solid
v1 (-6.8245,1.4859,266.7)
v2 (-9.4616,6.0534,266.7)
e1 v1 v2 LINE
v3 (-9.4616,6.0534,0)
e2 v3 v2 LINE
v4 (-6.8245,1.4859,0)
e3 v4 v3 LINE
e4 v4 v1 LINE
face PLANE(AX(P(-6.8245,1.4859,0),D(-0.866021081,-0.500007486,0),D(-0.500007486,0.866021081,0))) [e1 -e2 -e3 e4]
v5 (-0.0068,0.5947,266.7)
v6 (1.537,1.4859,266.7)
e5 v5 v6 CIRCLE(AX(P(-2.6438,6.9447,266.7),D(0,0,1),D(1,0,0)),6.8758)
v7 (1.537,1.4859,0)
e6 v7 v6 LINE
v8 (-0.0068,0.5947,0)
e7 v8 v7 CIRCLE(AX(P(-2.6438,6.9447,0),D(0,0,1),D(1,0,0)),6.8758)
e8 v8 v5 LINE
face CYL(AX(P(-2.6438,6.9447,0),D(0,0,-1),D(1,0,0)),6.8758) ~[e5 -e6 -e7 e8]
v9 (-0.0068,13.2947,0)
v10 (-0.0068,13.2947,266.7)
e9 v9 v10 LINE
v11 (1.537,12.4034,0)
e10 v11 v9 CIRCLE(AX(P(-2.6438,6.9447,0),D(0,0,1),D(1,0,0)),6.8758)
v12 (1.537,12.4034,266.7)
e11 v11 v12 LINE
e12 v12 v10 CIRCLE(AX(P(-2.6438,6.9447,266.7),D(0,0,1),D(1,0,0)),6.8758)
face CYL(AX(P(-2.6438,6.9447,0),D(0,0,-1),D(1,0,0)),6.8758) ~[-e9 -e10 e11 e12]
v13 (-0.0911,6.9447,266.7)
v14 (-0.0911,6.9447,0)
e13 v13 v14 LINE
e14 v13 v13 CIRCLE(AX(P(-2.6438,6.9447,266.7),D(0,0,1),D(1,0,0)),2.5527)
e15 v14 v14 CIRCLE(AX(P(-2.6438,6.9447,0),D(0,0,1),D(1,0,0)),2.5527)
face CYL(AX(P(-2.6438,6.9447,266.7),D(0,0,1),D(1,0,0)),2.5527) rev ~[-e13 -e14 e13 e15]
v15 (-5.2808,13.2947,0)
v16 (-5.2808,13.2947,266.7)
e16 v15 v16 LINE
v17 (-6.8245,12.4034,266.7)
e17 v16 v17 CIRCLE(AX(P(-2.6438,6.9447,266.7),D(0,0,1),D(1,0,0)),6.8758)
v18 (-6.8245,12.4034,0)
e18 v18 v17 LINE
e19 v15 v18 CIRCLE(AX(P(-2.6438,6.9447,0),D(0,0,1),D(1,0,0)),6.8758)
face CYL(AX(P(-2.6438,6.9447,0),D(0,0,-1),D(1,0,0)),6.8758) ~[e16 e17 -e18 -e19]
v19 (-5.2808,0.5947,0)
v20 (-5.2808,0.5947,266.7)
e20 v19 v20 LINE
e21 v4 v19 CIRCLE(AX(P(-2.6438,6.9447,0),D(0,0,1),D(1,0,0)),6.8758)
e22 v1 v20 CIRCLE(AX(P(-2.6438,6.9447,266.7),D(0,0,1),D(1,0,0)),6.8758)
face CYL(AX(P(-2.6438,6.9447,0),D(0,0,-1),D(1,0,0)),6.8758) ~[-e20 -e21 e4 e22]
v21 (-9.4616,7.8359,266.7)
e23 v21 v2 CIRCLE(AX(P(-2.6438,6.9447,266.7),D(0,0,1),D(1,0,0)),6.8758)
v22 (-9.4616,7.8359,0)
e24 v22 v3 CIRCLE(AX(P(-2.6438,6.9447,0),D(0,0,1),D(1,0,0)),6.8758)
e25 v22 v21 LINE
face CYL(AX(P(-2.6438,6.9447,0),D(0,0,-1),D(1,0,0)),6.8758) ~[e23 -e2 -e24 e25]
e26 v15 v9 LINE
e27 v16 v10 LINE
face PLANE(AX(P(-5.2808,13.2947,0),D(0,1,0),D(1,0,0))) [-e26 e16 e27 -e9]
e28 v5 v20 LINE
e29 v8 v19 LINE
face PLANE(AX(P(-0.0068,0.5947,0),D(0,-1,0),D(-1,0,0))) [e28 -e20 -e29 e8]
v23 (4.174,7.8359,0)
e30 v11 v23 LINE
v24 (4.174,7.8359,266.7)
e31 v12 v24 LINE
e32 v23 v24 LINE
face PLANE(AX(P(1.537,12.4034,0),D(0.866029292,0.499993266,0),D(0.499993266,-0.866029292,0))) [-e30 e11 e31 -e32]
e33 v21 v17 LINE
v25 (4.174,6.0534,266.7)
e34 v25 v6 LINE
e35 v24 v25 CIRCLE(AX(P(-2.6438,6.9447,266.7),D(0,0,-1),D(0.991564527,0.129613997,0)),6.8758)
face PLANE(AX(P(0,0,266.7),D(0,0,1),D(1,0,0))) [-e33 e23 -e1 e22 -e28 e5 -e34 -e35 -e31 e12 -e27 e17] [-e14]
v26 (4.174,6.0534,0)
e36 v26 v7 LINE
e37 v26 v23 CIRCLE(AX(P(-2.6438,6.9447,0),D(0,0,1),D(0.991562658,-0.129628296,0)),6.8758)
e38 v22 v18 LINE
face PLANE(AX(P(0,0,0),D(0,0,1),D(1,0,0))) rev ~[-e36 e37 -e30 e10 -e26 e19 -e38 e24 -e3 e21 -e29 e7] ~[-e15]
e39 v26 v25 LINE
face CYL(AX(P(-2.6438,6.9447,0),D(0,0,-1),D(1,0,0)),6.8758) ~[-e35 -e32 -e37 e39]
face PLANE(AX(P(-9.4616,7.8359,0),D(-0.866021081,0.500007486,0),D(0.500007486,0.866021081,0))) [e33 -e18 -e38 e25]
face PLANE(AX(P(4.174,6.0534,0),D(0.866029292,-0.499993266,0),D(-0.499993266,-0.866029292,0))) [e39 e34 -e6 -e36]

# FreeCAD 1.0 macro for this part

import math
import FreeCAD as App
import Part
import Sketcher

V = App.Vector
Q = App.Units.Quantity

doc = App.newDocument("Part")
body = doc.addObject("PartDesign::Body", "Body")

# Sketch on XY plane
sketch1 = doc.addObject("Sketcher::SketchObject", "Sketch")
body.addObject(sketch1)
sketch1.AttachmentSupport = (doc.XY_Plane, [""])
sketch1.MapMode = "FlatFace"
sketch1.addGeometry(Part.ArcOfCircle(Part.Circle(V(-2.6, 6.9, 0), V(0, 0, 1), 6.9), math.radians(-7.45), math.radians(7.45)), False)
sketch1.addGeometry(Part.LineSegment(V(4.2, 7.8, 0), V(1.5, 12.4, 0)), False)
sketch1.addGeometry(Part.ArcOfCircle(Part.Circle(V(-2.6, 6.9, 0), V(0, 0, 1), 6.9), math.radians(52.55), math.radians(67.45)), False)
sketch1.addGeometry(Part.LineSegment(V(0, 13.3, 0), V(-5.3, 13.3, 0)), False)
sketch1.addGeometry(Part.ArcOfCircle(Part.Circle(V(-2.6, 6.9, 0), V(0, 0, 1), 6.9), math.radians(112.55), math.radians(127.45)), False)
sketch1.addGeometry(Part.LineSegment(V(-6.8, 12.4, 0), V(-9.5, 7.8, 0)), False)
sketch1.addGeometry(Part.ArcOfCircle(Part.Circle(V(-2.6, 6.9, 0), V(0, 0, 1), 6.9), math.radians(172.55), math.radians(187.45)), False)
sketch1.addGeometry(Part.LineSegment(V(-9.5, 6.1, 0), V(-6.8, 1.5, 0)), False)
sketch1.addGeometry(Part.ArcOfCircle(Part.Circle(V(-2.6, 6.9, 0), V(0, 0, 1), 6.9), math.radians(-127.45), math.radians(-112.55)), False)
sketch1.addGeometry(Part.LineSegment(V(-5.3, 0.6, 0), V(0, 0.6, 0)), False)
sketch1.addGeometry(Part.ArcOfCircle(Part.Circle(V(-2.6, 6.9, 0), V(0, 0, 1), 6.9), math.radians(-67.45), math.radians(-52.55)), False)
sketch1.addGeometry(Part.LineSegment(V(1.5, 1.5, 0), V(4.2, 6.1, 0)), False)
sketch1.addConstraint(Sketcher.Constraint("Coincident", 0, 2, 1, 1))
sketch1.addConstraint(Sketcher.Constraint("Coincident", 1, 2, 2, 1))
sketch1.addConstraint(Sketcher.Constraint("Coincident", 2, 2, 3, 1))
sketch1.addConstraint(Sketcher.Constraint("Coincident", 3, 2, 4, 1))
sketch1.addConstraint(Sketcher.Constraint("Coincident", 4, 2, 5, 1))
sketch1.addConstraint(Sketcher.Constraint("Coincident", 5, 2, 6, 1))
sketch1.addConstraint(Sketcher.Constraint("Coincident", 6, 2, 7, 1))
sketch1.addConstraint(Sketcher.Constraint("Coincident", 7, 2, 8, 1))
sketch1.addConstraint(Sketcher.Constraint("Coincident", 8, 2, 9, 1))
sketch1.addConstraint(Sketcher.Constraint("Coincident", 9, 2, 10, 1))
sketch1.addConstraint(Sketcher.Constraint("Coincident", 10, 2, 11, 1))
sketch1.addConstraint(Sketcher.Constraint("Coincident", 11, 2, 0, 1))
sketch1.addConstraint(Sketcher.Constraint("Horizontal", 3))
sketch1.addConstraint(Sketcher.Constraint("Horizontal", 9))
sketch1.addConstraint(Sketcher.Constraint("Coincident", 2, 3, 0, 3))
sketch1.addConstraint(Sketcher.Constraint("Coincident", 4, 3, 0, 3))
sketch1.addConstraint(Sketcher.Constraint("Coincident", 6, 3, 0, 3))
sketch1.addConstraint(Sketcher.Constraint("Coincident", 8, 3, 0, 3))
sketch1.addConstraint(Sketcher.Constraint("Coincident", 10, 3, 0, 3))
sketch1.addConstraint(Sketcher.Constraint("Equal", 0, 2))
sketch1.addConstraint(Sketcher.Constraint("Equal", 2, 4))
sketch1.addConstraint(Sketcher.Constraint("Equal", 4, 6))
sketch1.addConstraint(Sketcher.Constraint("Equal", 6, 8))
sketch1.addConstraint(Sketcher.Constraint("Equal", 8, 10))
sketch1.addConstraint(Sketcher.Constraint("Parallel", 1, 7))
sketch1.addConstraint(Sketcher.Constraint("Parallel", 5, 11))
sketch1.addConstraint(Sketcher.Constraint("Horizontal", 1, 2, 4, 2))
sketch1.addConstraint(Sketcher.Constraint("Horizontal", 0, 2, 5, 2))
sketch1.addConstraint(Sketcher.Constraint("Horizontal", 7, 2, 10, 2))
sketch1.addConstraint(Sketcher.Constraint("Vertical", 5, 2, 6, 2))
sketch1.addConstraint(Sketcher.Constraint("Vertical", 3, 2, 8, 2))
sketch1.addConstraint(Sketcher.Constraint("Radius", 0, Q("0.2707 in")))
sketch1.addConstraint(Sketcher.Constraint("Angle", 1, Q("119.9996 deg")))
sketch1.addConstraint(Sketcher.Constraint("DistanceY", 0, 3, 2, 2, Q("0.25 in")))
sketch1.addConstraint(Sketcher.Constraint("DistanceY", 10, 2, 0, 2, Q("0.25 in")))
sketch1.addConstraint(Sketcher.Constraint("DistanceY", -1, 1, 0, 2, Q("0.3085 in")))
sketch1.addConstraint(Sketcher.Constraint("DistanceX", -1, 1, 1, 2, Q("0.0605 in")))
pad1 = doc.addObject("PartDesign::Pad", "Pad")
body.addObject(pad1)
pad1.Profile = sketch1
pad1.Length = Q("10.5 in")

# Sketch on XY plane
sketch2 = doc.addObject("Sketcher::SketchObject", "Sketch001")
body.addObject(sketch2)
sketch2.AttachmentSupport = (doc.XY_Plane, [""])
sketch2.MapMode = "FlatFace"
sketch2.AttachmentOffset = App.Placement(V(0, 0, 10.5 * 25.4), App.Rotation())
sketch2.addGeometry(Part.Circle(V(-2.6, 6.9, 0), V(0, 0, 1), 2.6), False)
sketch2.addConstraint(Sketcher.Constraint("Diameter", 0, Q("0.201 in")))
sketch2.addConstraint(Sketcher.Constraint("DistanceX", 0, 3, -1, 1, Q("2.6438 mm")))
sketch2.addConstraint(Sketcher.Constraint("DistanceY", -1, 1, 0, 3, Q("6.9447 mm")))
pocket1 = doc.addObject("PartDesign::Pocket", "Pocket")
body.addObject(pocket1)
pocket1.Profile = sketch2
pocket1.Length = Q("10.5 in")

doc.recompute()
